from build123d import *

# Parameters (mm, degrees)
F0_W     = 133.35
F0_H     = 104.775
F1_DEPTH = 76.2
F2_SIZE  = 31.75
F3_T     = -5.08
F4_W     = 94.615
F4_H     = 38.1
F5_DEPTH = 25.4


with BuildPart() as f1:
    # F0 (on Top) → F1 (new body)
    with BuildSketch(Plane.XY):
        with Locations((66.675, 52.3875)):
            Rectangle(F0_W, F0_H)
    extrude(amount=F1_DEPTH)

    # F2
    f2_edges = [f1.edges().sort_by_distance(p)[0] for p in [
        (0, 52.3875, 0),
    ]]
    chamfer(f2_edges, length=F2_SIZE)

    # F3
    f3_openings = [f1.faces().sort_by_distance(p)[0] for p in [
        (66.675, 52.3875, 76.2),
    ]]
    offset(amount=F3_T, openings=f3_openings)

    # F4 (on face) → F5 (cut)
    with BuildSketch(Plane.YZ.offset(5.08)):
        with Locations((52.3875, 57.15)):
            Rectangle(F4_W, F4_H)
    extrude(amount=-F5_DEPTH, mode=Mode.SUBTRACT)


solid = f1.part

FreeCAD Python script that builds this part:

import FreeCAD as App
import Part
import Sketcher
from FreeCAD import Vector
Q = App.Units.Quantity


def edges_at(feature, points):
    """Names of the edges that pass closest to the given points."""
    edges = feature.Shape.Edges
    near = lambda p: min(range(len(edges)), key=lambda i: edges[i].distToShape(Part.Vertex(*p))[0])
    return sorted({f"Edge{near(p) + 1}" for p in points})


def faces_at(feature, points):
    """Names of the faces that lie closest to the given points."""
    faces = feature.Shape.Faces
    near = lambda p: min(range(len(faces)), key=lambda i: faces[i].distToShape(Part.Vertex(*p))[0])
    return sorted({f"Face{near(p) + 1}" for p in points})

doc = App.newDocument("Part")
body = doc.addObject("PartDesign::Body", "Body")

# Sketch on XY plane
sketch1 = body.newObject("Sketcher::SketchObject", "Sketch")
sketch1.AttachmentSupport = (doc.getObject("XY_Plane"), [""])
sketch1.MapMode = "FlatFace"
sketch1.addGeometry(Part.LineSegment(Vector(0, 105, 0), Vector(0, 0, 0)), False)
sketch1.addGeometry(Part.LineSegment(Vector(0, 0, 0), Vector(133, 0, 0)), False)
sketch1.addGeometry(Part.LineSegment(Vector(133, 0, 0), Vector(133, 105, 0)), False)
sketch1.addGeometry(Part.LineSegment(Vector(133, 105, 0), Vector(0, 105, 0)), False)
sketch1.addConstraint(Sketcher.Constraint("Coincident", 0, 2, 1, 1))
sketch1.addConstraint(Sketcher.Constraint("Coincident", 1, 2, 2, 1))
sketch1.addConstraint(Sketcher.Constraint("Coincident", 2, 2, 3, 1))
sketch1.addConstraint(Sketcher.Constraint("Coincident", 3, 2, 0, 1))
sketch1.addConstraint(Sketcher.Constraint("Vertical", 0))
sketch1.addConstraint(Sketcher.Constraint("Horizontal", 1))
sketch1.addConstraint(Sketcher.Constraint("Vertical", 2))
sketch1.addConstraint(Sketcher.Constraint("Horizontal", 3))
sketch1.addConstraint(Sketcher.Constraint("Coincident", 0, 2, -1, 1))
sketch1.addConstraint(Sketcher.Constraint("DistanceX", 1, 1, 1, 2, Q("5.25 in")))
sketch1.addConstraint(Sketcher.Constraint("DistanceY", 0, 2, 0, 1, Q("4.125 in")))
pad1 = body.newObject("PartDesign::Pad", "Pad")
pad1.Profile = sketch1
pad1.Length = Q("3 in")
doc.recompute()

chamfer = body.newObject("PartDesign::Chamfer", "Chamfer")
chamfer.Base = (pad1, edges_at(pad1, [(0, 52.388, 0)]))
chamfer.Size = Q("1.25 in")
doc.recompute()

thickness = body.newObject("PartDesign::Thickness", "Thickness")
thickness.Base = (chamfer, faces_at(chamfer, [(66.675, 52.388, 76.2)]))
thickness.Value = Q("0.2 in")
thickness.Reversed = True
thickness.Join = "Arc"

# Sketch on YZ plane
sketch2 = body.newObject("Sketcher::SketchObject", "Sketch001")
sketch2.AttachmentSupport = (doc.getObject("YZ_Plane"), [""])
sketch2.MapMode = "FlatFace"
sketch2.AttachmentOffset = App.Placement(Vector(0, 0, 0.2 * 25.4), App.Rotation())
sketch2.addGeometry(Part.LineSegment(Vector(5, 76, 0), Vector(5, 38, 0)), False)
sketch2.addGeometry(Part.LineSegment(Vector(5, 38, 0), Vector(100, 38, 0)), False)
sketch2.addGeometry(Part.LineSegment(Vector(100, 38, 0), Vector(100, 76, 0)), False)
sketch2.addGeometry(Part.LineSegment(Vector(100, 76, 0), Vector(5, 76, 0)), False)
sketch2.addConstraint(Sketcher.Constraint("Coincident", 0, 2, 1, 1))
sketch2.addConstraint(Sketcher.Constraint("Coincident", 1, 2, 2, 1))
sketch2.addConstraint(Sketcher.Constraint("Coincident", 2, 2, 3, 1))
sketch2.addConstraint(Sketcher.Constraint("Coincident", 3, 2, 0, 1))
sketch2.addConstraint(Sketcher.Constraint("Vertical", 0))
sketch2.addConstraint(Sketcher.Constraint("Horizontal", 1))
sketch2.addConstraint(Sketcher.Constraint("Vertical", 2))
sketch2.addConstraint(Sketcher.Constraint("Horizontal", 3))
sketch2.addConstraint(Sketcher.Constraint("DistanceY", 0, 2, 0, 1, Q("1.5 in")))
sketch2.addConstraint(Sketcher.Constraint("DistanceY", -1, 1, 2, 2, Q("3 in")))
sketch2.addConstraint(Sketcher.Constraint("DistanceX", -1, 1, 0, 2, Q("0.2 in")))
sketch2.addConstraint(Sketcher.Constraint("DistanceX", 1, 1, 1, 2, Q("3.725 in")))
pocket1 = body.newObject("PartDesign::Pocket", "Pocket")
pocket1.Profile = sketch2
pocket1.Length = Q("1 in")

doc.recompute()
